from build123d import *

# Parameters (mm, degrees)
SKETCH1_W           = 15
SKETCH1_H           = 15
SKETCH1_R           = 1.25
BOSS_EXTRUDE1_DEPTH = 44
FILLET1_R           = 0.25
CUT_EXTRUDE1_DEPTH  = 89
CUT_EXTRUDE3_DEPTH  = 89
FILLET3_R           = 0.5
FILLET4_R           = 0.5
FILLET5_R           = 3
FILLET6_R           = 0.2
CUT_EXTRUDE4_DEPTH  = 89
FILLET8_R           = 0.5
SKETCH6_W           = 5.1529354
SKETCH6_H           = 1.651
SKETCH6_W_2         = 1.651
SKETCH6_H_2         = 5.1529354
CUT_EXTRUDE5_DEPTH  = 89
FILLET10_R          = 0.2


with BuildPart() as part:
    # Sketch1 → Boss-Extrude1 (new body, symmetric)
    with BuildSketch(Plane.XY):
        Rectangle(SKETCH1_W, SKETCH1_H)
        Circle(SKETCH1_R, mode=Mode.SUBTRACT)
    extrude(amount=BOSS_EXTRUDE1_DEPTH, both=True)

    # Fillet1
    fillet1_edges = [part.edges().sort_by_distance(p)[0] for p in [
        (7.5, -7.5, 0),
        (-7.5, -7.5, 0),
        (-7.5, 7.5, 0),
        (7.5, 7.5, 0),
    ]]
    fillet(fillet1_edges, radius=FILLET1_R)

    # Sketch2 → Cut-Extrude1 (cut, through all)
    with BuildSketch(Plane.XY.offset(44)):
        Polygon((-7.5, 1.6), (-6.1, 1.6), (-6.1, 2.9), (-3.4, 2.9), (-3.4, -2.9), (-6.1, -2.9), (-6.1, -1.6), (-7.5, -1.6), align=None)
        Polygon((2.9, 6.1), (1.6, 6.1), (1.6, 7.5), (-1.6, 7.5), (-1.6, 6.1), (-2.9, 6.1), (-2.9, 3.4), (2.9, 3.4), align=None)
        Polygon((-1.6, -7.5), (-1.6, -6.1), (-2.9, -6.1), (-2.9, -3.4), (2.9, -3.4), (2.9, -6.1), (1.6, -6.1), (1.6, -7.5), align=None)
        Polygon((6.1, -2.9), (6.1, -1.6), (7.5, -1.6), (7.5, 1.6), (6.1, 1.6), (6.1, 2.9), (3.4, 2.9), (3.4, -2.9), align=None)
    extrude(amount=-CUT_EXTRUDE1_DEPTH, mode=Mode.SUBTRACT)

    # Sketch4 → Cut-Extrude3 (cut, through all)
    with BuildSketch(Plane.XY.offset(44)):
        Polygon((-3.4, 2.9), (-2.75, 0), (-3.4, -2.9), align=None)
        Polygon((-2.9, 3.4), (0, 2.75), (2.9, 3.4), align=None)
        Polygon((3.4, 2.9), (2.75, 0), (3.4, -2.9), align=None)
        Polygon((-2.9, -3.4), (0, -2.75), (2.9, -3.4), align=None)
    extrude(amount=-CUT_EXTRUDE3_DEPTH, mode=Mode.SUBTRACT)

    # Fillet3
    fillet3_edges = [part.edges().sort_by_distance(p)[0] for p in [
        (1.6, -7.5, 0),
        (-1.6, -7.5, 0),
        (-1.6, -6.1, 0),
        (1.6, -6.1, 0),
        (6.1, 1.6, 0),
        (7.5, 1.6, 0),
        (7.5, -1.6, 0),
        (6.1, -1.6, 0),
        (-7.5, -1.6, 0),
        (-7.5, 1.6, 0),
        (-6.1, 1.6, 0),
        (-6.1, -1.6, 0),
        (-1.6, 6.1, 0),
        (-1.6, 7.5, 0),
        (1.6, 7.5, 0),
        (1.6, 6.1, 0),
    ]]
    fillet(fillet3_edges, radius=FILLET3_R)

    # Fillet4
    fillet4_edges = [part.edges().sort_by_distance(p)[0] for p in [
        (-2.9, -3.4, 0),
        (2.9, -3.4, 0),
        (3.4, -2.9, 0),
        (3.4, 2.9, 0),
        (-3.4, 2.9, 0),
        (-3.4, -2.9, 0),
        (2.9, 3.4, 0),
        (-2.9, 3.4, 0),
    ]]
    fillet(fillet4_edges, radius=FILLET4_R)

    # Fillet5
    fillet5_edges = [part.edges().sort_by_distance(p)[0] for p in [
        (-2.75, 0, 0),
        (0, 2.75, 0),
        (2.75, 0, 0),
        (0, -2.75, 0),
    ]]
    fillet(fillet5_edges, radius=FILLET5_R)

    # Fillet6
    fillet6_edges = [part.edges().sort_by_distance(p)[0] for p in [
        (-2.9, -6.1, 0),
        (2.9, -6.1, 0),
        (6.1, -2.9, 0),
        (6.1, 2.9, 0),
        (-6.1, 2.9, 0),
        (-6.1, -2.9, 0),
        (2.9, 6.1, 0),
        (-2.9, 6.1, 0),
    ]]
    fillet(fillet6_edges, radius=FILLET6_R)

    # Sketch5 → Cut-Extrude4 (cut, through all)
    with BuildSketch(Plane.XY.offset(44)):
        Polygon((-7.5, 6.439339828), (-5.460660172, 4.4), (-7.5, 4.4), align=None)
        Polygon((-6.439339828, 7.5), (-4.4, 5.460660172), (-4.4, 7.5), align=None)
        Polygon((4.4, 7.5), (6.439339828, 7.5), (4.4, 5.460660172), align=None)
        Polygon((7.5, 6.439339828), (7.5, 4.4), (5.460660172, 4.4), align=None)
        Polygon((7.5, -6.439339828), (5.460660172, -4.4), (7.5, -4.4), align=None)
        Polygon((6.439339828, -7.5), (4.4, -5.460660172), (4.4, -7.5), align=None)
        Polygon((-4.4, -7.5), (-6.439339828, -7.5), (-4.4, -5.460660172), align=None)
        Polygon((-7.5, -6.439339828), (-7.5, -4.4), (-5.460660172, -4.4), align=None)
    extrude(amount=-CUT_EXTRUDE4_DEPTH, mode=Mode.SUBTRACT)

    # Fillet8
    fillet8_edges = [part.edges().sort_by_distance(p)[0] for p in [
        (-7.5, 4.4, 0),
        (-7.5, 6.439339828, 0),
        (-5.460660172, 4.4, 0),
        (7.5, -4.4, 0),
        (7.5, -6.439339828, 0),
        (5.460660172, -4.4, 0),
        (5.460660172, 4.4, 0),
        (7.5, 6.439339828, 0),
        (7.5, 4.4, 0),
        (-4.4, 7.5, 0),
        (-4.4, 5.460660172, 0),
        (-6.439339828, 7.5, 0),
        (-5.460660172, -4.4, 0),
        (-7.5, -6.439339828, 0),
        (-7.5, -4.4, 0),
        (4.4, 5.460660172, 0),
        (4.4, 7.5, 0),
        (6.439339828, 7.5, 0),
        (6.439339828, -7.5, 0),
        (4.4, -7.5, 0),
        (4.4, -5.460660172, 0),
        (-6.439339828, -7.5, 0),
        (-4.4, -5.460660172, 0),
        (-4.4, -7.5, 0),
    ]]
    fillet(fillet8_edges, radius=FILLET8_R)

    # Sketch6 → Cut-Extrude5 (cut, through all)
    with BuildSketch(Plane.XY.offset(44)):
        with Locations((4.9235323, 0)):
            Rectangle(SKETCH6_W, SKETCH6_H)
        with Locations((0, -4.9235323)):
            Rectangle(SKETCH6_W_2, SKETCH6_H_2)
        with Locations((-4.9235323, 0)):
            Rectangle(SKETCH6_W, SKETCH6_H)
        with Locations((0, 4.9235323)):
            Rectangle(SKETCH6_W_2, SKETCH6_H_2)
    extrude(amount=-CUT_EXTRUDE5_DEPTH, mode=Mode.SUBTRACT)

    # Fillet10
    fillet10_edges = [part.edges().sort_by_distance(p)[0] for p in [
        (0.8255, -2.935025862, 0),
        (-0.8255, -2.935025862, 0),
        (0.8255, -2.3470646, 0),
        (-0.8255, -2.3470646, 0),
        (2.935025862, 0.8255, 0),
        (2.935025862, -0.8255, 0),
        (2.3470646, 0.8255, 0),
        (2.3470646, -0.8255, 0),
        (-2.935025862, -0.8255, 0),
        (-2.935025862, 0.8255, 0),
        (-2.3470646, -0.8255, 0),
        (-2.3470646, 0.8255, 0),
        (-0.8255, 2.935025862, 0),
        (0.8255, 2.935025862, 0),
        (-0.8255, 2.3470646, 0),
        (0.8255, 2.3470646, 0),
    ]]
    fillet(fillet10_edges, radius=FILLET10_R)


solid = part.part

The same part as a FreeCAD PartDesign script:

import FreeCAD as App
import Part
import Sketcher

V = App.Vector
Q = App.Units.Quantity


def edges_at(feature, points):
    """Names of the edges that pass closest to the given points."""
    edges = feature.Shape.Edges
    near = lambda p: min(range(len(edges)), key=lambda i: edges[i].distToShape(Part.Vertex(*p))[0])
    return sorted({f"Edge{near(p) + 1}" for p in points})

doc = App.newDocument("Part")
body = doc.addObject("PartDesign::Body", "Body")

sketch1 = body.newObject("Sketcher::SketchObject", "Sketch")
sketch1.AttachmentSupport = (doc.getObject("XY_Plane"), [""])
sketch1.MapMode = "FlatFace"
sketch1.addGeometry(Part.LineSegment(V(-7.5, 7.5, 0), V(-7.5, -7.5, 0)), False)
sketch1.addGeometry(Part.LineSegment(V(-7.5, -7.5, 0), V(7.5, -7.5, 0)), False)
sketch1.addGeometry(Part.LineSegment(V(7.5, -7.5, 0), V(7.5, 7.5, 0)), False)
sketch1.addGeometry(Part.LineSegment(V(7.5, 7.5, 0), V(-7.5, 7.5, 0)), False)
sketch1.addGeometry(Part.Circle(V(0, 0, 0), V(0, 0, 1), 1.2), False)
sketch1.addConstraint(Sketcher.Constraint("Coincident", 0, 2, 1, 1))
sketch1.addConstraint(Sketcher.Constraint("Coincident", 1, 2, 2, 1))
sketch1.addConstraint(Sketcher.Constraint("Coincident", 2, 2, 3, 1))
sketch1.addConstraint(Sketcher.Constraint("Coincident", 3, 2, 0, 1))
sketch1.addConstraint(Sketcher.Constraint("Vertical", 0))
sketch1.addConstraint(Sketcher.Constraint("Horizontal", 1))
sketch1.addConstraint(Sketcher.Constraint("Vertical", 2))
sketch1.addConstraint(Sketcher.Constraint("Horizontal", 3))
sketch1.addConstraint(Sketcher.Constraint("Coincident", 4, 3, -1, 1))
sketch1.addConstraint(Sketcher.Constraint("Symmetric", 0, 2, 2, 2, -1, 1))
sketch1.addConstraint(Sketcher.Constraint("Equal", 3, 0))
sketch1.addConstraint(Sketcher.Constraint("Diameter", 4, Q("2.5 mm")))
sketch1.addConstraint(Sketcher.Constraint("DistanceX", 1, 1, 1, 2, Q("15 mm")))
pad1 = body.newObject("PartDesign::Pad", "Pad")
pad1.Profile = sketch1
pad1.Length = 88
pad1.Midplane = True
doc.recompute()

fillet = body.newObject("PartDesign::Fillet", "Fillet")
fillet.Base = (pad1, edges_at(pad1, [
    (7.5, -7.5, 0),
    (-7.5, -7.5, 0),
    (-7.5, 7.5, 0),
    (7.5, 7.5, 0),
]))
fillet.Radius = 0.25

sketch2 = body.newObject("Sketcher::SketchObject", "Sketch001")
sketch2.AttachmentSupport = (doc.getObject("XY_Plane"), [""])
sketch2.MapMode = "FlatFace"
sketch2.AttachmentOffset = App.Placement(V(0, 0, 44), App.Rotation())
sketch2.addGeometry(Part.LineSegment(V(-6.1, 1.6, 0), V(-7.5, 1.6, 0)), False)
sketch2.addGeometry(Part.LineSegment(V(-7.5, 1.6, 0), V(-7.5, -1.6, 0)), False)
sketch2.addGeometry(Part.LineSegment(V(-7.5, -1.6, 0), V(-6.1, -1.6, 0)), False)
sketch2.addGeometry(Part.LineSegment(V(-6.1, -1.6, 0), V(-6.1, -2.9, 0)), False)
sketch2.addGeometry(Part.LineSegment(V(-6.1, -2.9, 0), V(-3.4, -2.9, 0)), False)
sketch2.addGeometry(Part.LineSegment(V(-3.4, -2.9, 0), V(-3.4, 2.9, 0)), False)
sketch2.addGeometry(Part.LineSegment(V(-3.4, 2.9, 0), V(-6.1, 2.9, 0)), False)
sketch2.addGeometry(Part.LineSegment(V(-6.1, 2.9, 0), V(-6.1, 1.6, 0)), False)
sketch2.addGeometry(Part.LineSegment(V(2.9, 6.1, 0), V(1.6, 6.1, 0)), False)
sketch2.addGeometry(Part.LineSegment(V(1.6, 6.1, 0), V(1.6, 7.5, 0)), False)
sketch2.addGeometry(Part.LineSegment(V(1.6, 7.5, 0), V(-1.6, 7.5, 0)), False)
sketch2.addGeometry(Part.LineSegment(V(-1.6, 7.5, 0), V(-1.6, 6.1, 0)), False)
sketch2.addGeometry(Part.LineSegment(V(-1.6, 6.1, 0), V(-2.9, 6.1, 0)), False)
sketch2.addGeometry(Part.LineSegment(V(-2.9, 6.1, 0), V(-2.9, 3.4, 0)), False)
sketch2.addGeometry(Part.LineSegment(V(-2.9, 3.4, 0), V(2.9, 3.4, 0)), False)
sketch2.addGeometry(Part.LineSegment(V(2.9, 3.4, 0), V(2.9, 6.1, 0)), False)
sketch2.addGeometry(Part.LineSegment(V(-1.6, -6.1, 0), V(-1.6, -7.5, 0)), False)
sketch2.addGeometry(Part.LineSegment(V(-1.6, -7.5, 0), V(1.6, -7.5, 0)), False)
sketch2.addGeometry(Part.LineSegment(V(1.6, -7.5, 0), V(1.6, -6.1, 0)), False)
sketch2.addGeometry(Part.LineSegment(V(1.6, -6.1, 0), V(2.9, -6.1, 0)), False)
sketch2.addGeometry(Part.LineSegment(V(2.9, -6.1, 0), V(2.9, -3.4, 0)), False)
sketch2.addGeometry(Part.LineSegment(V(2.9, -3.4, 0), V(-2.9, -3.4, 0)), False)
sketch2.addGeometry(Part.LineSegment(V(-2.9, -3.4, 0), V(-2.9, -6.1, 0)), False)
sketch2.addGeometry(Part.LineSegment(V(-2.9, -6.1, 0), V(-1.6, -6.1, 0)), False)
sketch2.addGeometry(Part.LineSegment(V(6.1, -2.9, 0), V(6.1, -1.6, 0)), False)
sketch2.addGeometry(Part.LineSegment(V(6.1, -1.6, 0), V(7.5, -1.6, 0)), False)
sketch2.addGeometry(Part.LineSegment(V(7.5, -1.6, 0), V(7.5, 1.6, 0)), False)
sketch2.addGeometry(Part.LineSegment(V(7.5, 1.6, 0), V(6.1, 1.6, 0)), False)
sketch2.addGeometry(Part.LineSegment(V(6.1, 1.6, 0), V(6.1, 2.9, 0)), False)
sketch2.addGeometry(Part.LineSegment(V(6.1, 2.9, 0), V(3.4, 2.9, 0)), False)
sketch2.addGeometry(Part.LineSegment(V(3.4, 2.9, 0), V(3.4, -2.9, 0)), False)
sketch2.addGeometry(Part.LineSegment(V(3.4, -2.9, 0), V(6.1, -2.9, 0)), False)
sketch2.addConstraint(Sketcher.Constraint("Coincident", 0, 2, 1, 1))
sketch2.addConstraint(Sketcher.Constraint("Coincident", 1, 2, 2, 1))
sketch2.addConstraint(Sketcher.Constraint("Coincident", 2, 2, 3, 1))
sketch2.addConstraint(Sketcher.Constraint("Coincident", 3, 2, 4, 1))
sketch2.addConstraint(Sketcher.Constraint("Coincident", 4, 2, 5, 1))
sketch2.addConstraint(Sketcher.Constraint("Coincident", 5, 2, 6, 1))
sketch2.addConstraint(Sketcher.Constraint("Coincident", 6, 2, 7, 1))
sketch2.addConstraint(Sketcher.Constraint("Coincident", 7, 2, 0, 1))
sketch2.addConstraint(Sketcher.Constraint("Coincident", 8, 2, 9, 1))
sketch2.addConstraint(Sketcher.Constraint("Coincident", 9, 2, 10, 1))
sketch2.addConstraint(Sketcher.Constraint("Coincident", 10, 2, 11, 1))
sketch2.addConstraint(Sketcher.Constraint("Coincident", 11, 2, 12, 1))
sketch2.addConstraint(Sketcher.Constraint("Coincident", 12, 2, 13, 1))
sketch2.addConstraint(Sketcher.Constraint("Coincident", 13, 2, 14, 1))
sketch2.addConstraint(Sketcher.Constraint("Coincident", 14, 2, 15, 1))
sketch2.addConstraint(Sketcher.Constraint("Coincident", 15, 2, 8, 1))
sketch2.addConstraint(Sketcher.Constraint("Coincident", 16, 2, 17, 1))
sketch2.addConstraint(Sketcher.Constraint("Coincident", 17, 2, 18, 1))
sketch2.addConstraint(Sketcher.Constraint("Coincident", 18, 2, 19, 1))
sketch2.addConstraint(Sketcher.Constraint("Coincident", 19, 2, 20, 1))
sketch2.addConstraint(Sketcher.Constraint("Coincident", 20, 2, 21, 1))
sketch2.addConstraint(Sketcher.Constraint("Coincident", 21, 2, 22, 1))
sketch2.addConstraint(Sketcher.Constraint("Coincident", 22, 2, 23, 1))
sketch2.addConstraint(Sketcher.Constraint("Coincident", 23, 2, 16, 1))
sketch2.addConstraint(Sketcher.Constraint("Coincident", 24, 2, 25, 1))
sketch2.addConstraint(Sketcher.Constraint("Coincident", 25, 2, 26, 1))
sketch2.addConstraint(Sketcher.Constraint("Coincident", 26, 2, 27, 1))
sketch2.addConstraint(Sketcher.Constraint("Coincident", 27, 2, 28, 1))
sketch2.addConstraint(Sketcher.Constraint("Coincident", 28, 2, 29, 1))
sketch2.addConstraint(Sketcher.Constraint("Coincident", 29, 2, 30, 1))
sketch2.addConstraint(Sketcher.Constraint("Coincident", 30, 2, 31, 1))
sketch2.addConstraint(Sketcher.Constraint("Coincident", 31, 2, 24, 1))
sketch2.addConstraint(Sketcher.Constraint("Horizontal", 0))
sketch2.addConstraint(Sketcher.Constraint("Vertical", 1))
sketch2.addConstraint(Sketcher.Constraint("Horizontal", 2))
sketch2.addConstraint(Sketcher.Constraint("Vertical", 3))
sketch2.addConstraint(Sketcher.Constraint("Horizontal", 4))
sketch2.addConstraint(Sketcher.Constraint("Vertical", 5))
sketch2.addConstraint(Sketcher.Constraint("Horizontal", 6))
sketch2.addConstraint(Sketcher.Constraint("Vertical", 7))
sketch2.addConstraint(Sketcher.Constraint("Horizontal", 8))
sketch2.addConstraint(Sketcher.Constraint("Vertical", 9))
sketch2.addConstraint(Sketcher.Constraint("Horizontal", 10))
sketch2.addConstraint(Sketcher.Constraint("Vertical", 11))
sketch2.addConstraint(Sketcher.Constraint("Horizontal", 12))
sketch2.addConstraint(Sketcher.Constraint("Vertical", 13))
sketch2.addConstraint(Sketcher.Constraint("Horizontal", 14))
sketch2.addConstraint(Sketcher.Constraint("Vertical", 15))
sketch2.addConstraint(Sketcher.Constraint("Vertical", 16))
sketch2.addConstraint(Sketcher.Constraint("Horizontal", 17))
sketch2.addConstraint(Sketcher.Constraint("Vertical", 18))
sketch2.addConstraint(Sketcher.Constraint("Horizontal", 19))
sketch2.addConstraint(Sketcher.Constraint("Vertical", 20))
sketch2.addConstraint(Sketcher.Constraint("Horizontal", 21))
sketch2.addConstraint(Sketcher.Constraint("Vertical", 22))
sketch2.addConstraint(Sketcher.Constraint("Horizontal", 23))
sketch2.addConstraint(Sketcher.Constraint("Vertical", 24))
sketch2.addConstraint(Sketcher.Constraint("Horizontal", 25))
sketch2.addConstraint(Sketcher.Constraint("Vertical", 26))
sketch2.addConstraint(Sketcher.Constraint("Horizontal", 27))
sketch2.addConstraint(Sketcher.Constraint("Vertical", 28))
sketch2.addConstraint(Sketcher.Constraint("Horizontal", 29))
sketch2.addConstraint(Sketcher.Constraint("Vertical", 30))
sketch2.addConstraint(Sketcher.Constraint("Horizontal", 31))
sketch2.addConstraint(Sketcher.Constraint("Symmetric", 9, 2, 16, 2, -1, 1))
sketch2.addConstraint(Sketcher.Constraint("Symmetric", 11, 2, 18, 2, -1, 1))
sketch2.addConstraint(Sketcher.Constraint("Symmetric", 13, 2, 20, 2, -1, 1))
sketch2.addConstraint(Sketcher.Constraint("Symmetric", 15, 2, 22, 2, -1, 1))
sketch2.addConstraint(Sketcher.Constraint("Symmetric", 7, 2, 24, 2, -1, 1))
sketch2.addConstraint(Sketcher.Constraint("Symmetric", 1, 2, 26, 2, -1, 1))
sketch2.addConstraint(Sketcher.Constraint("Symmetric", 3, 2, 28, 2, -1, 1))
sketch2.addConstraint(Sketcher.Constraint("Symmetric", 5, 2, 30, 2, -1, 1))
sketch2.addConstraint(Sketcher.Constraint("Symmetric", 8, 2, 11, 2, -2))
sketch2.addConstraint(Sketcher.Constraint("Symmetric", 2, 2, 24, 2, -2))
sketch2.addConstraint(Sketcher.Constraint("Horizontal", 6, 2, 28, 2))
sketch2.addConstraint(Sketcher.Constraint("Vertical", 15, 2, 19, 2))
sketch2.addConstraint(Sketcher.Constraint("Equal", 17, 1))
sketch2.addConstraint(Sketcher.Constraint("Equal", 23, 3))
sketch2.addConstraint(Sketcher.Constraint("Equal", 27, 9))
sketch2.addConstraint(Sketcher.Constraint("Equal", 31, 13))
sketch2.addConstraint(Sketcher.Constraint("DistanceX", 0, 2, 0, 1, Q("1.4 mm")))
sketch2.addConstraint(Sketcher.Constraint("DistanceX", 4, 1, 4, 2, Q("2.7 mm")))
sketch2.addConstraint(Sketcher.Constraint("DistanceX", 8, 2, 8, 1, Q("1.3 mm")))
sketch2.addConstraint(Sketcher.Constraint("DistanceX", 10, 2, 10, 1, Q("3.2 mm")))
sketch2.addConstraint(Sketcher.Constraint("DistanceX", 5, 2, 8, 2, Q("5 mm")))
sketch2.addConstraint(Sketcher.Constraint("DistanceY", 4, 2, 8, 2, Q("9 mm")))
pocket1 = body.newObject("PartDesign::Pocket", "Pocket")
pocket1.Profile = sketch2
pocket1.Type = "ThroughAll"

sketch3 = body.newObject("Sketcher::SketchObject", "Sketch002")
sketch3.AttachmentSupport = (doc.getObject("XY_Plane"), [""])
sketch3.MapMode = "FlatFace"
sketch3.AttachmentOffset = App.Placement(V(0, 0, 44), App.Rotation())
sketch3.addGeometry(Part.LineSegment(V(-2.8, 0, 0), V(-3.4, 2.9, 0)), False)
sketch3.addGeometry(Part.LineSegment(V(-3.4, 2.9, 0), V(-3.4, -2.9, 0)), False)
sketch3.addGeometry(Part.LineSegment(V(-3.4, -2.9, 0), V(-2.8, 0, 0)), False)
sketch3.addGeometry(Part.LineSegment(V(-2.9, 3.4, 0), V(0, 2.8, 0)), False)
sketch3.addGeometry(Part.LineSegment(V(0, 2.8, 0), V(2.9, 3.4, 0)), False)
sketch3.addGeometry(Part.LineSegment(V(2.9, 3.4, 0), V(-2.9, 3.4, 0)), False)
sketch3.addGeometry(Part.LineSegment(V(3.4, 2.9, 0), V(2.8, 0, 0)), False)
sketch3.addGeometry(Part.LineSegment(V(2.8, 0, 0), V(3.4, -2.9, 0)), False)
sketch3.addGeometry(Part.LineSegment(V(3.4, -2.9, 0), V(3.4, 2.9, 0)), False)
sketch3.addGeometry(Part.LineSegment(V(0, -2.8, 0), V(-2.9, -3.4, 0)), False)
sketch3.addGeometry(Part.LineSegment(V(-2.9, -3.4, 0), V(2.9, -3.4, 0)), False)
sketch3.addGeometry(Part.LineSegment(V(2.9, -3.4, 0), V(0, -2.8, 0)), False)
sketch3.addConstraint(Sketcher.Constraint("Coincident", 0, 2, 1, 1))
sketch3.addConstraint(Sketcher.Constraint("Coincident", 1, 2, 2, 1))
sketch3.addConstraint(Sketcher.Constraint("Coincident", 2, 2, 0, 1))
sketch3.addConstraint(Sketcher.Constraint("Coincident", 3, 2, 4, 1))
sketch3.addConstraint(Sketcher.Constraint("Coincident", 4, 2, 5, 1))
sketch3.addConstraint(Sketcher.Constraint("Coincident", 5, 2, 3, 1))
sketch3.addConstraint(Sketcher.Constraint("Coincident", 6, 2, 7, 1))
sketch3.addConstraint(Sketcher.Constraint("Coincident", 7, 2, 8, 1))
sketch3.addConstraint(Sketcher.Constraint("Coincident", 8, 2, 6, 1))
sketch3.addConstraint(Sketcher.Constraint("Coincident", 9, 2, 10, 1))
sketch3.addConstraint(Sketcher.Constraint("Coincident", 10, 2, 11, 1))
sketch3.addConstraint(Sketcher.Constraint("Coincident", 11, 2, 9, 1))
sketch3.addConstraint(Sketcher.Constraint("Vertical", 1))
sketch3.addConstraint(Sketcher.Constraint("Horizontal", 5))
sketch3.addConstraint(Sketcher.Constraint("Vertical", 8))
sketch3.addConstraint(Sketcher.Constraint("Horizontal", 10))
sketch3.addConstraint(Sketcher.Constraint("Symmetric", 2, 2, 6, 2, -1, 1))
sketch3.addConstraint(Sketcher.Constraint("Symmetric", 0, 2, 7, 2, -1, 1))
sketch3.addConstraint(Sketcher.Constraint("Symmetric", 4, 2, 9, 2, -1, 1))
sketch3.addConstraint(Sketcher.Constraint("Symmetric", 3, 2, 11, 2, -1, 1))
sketch3.addConstraint(Sketcher.Constraint("PointOnObject", 2, 2, -1))
sketch3.addConstraint(Sketcher.Constraint("PointOnObject", 3, 2, -2))
sketch3.addConstraint(Sketcher.Constraint("Perpendicular", 2, 3))
sketch3.addConstraint(Sketcher.Constraint("Perpendicular", 0, 4))
sketch3.addConstraint(Sketcher.Constraint("Perpendicular", 3, 6))
sketch3.addConstraint(Sketcher.Constraint("Perpendicular", 6, 11))
sketch3.addConstraint(Sketcher.Constraint("Horizontal", 1, 2, 7, 2))
sketch3.addConstraint(Sketcher.Constraint("Equal", 10, 1))
sketch3.addConstraint(Sketcher.Constraint("DistanceX", 5, 2, 5, 1, Q("5.8 mm")))
sketch3.addConstraint(Sketcher.Constraint("DistanceX", 0, 2, -1, 1, Q("3.4 mm")))
sketch3.addConstraint(Sketcher.Constraint("DistanceY", -1, 1, 4, 2, Q("3.4 mm")))
sketch3.addConstraint(Sketcher.Constraint("DistanceX", 2, 2, 6, 2, Q("5.5 mm")))
pocket2 = body.newObject("PartDesign::Pocket", "Pocket001")
pocket2.Profile = sketch3
pocket2.Type = "ThroughAll"
doc.recompute()

fillet2 = body.newObject("PartDesign::Fillet", "Fillet001")
fillet2.Base = (pocket2, edges_at(pocket2, [
    (1.6, -7.5, 0),
    (-1.6, -7.5, 0),
    (-1.6, -6.1, 0),
    (1.6, -6.1, 0),
    (6.1, 1.6, 0),
    (7.5, 1.6, 0),
    (7.5, -1.6, 0),
    (6.1, -1.6, 0),
    (-7.5, -1.6, 0),
    (-7.5, 1.6, 0),
    (-6.1, 1.6, 0),
    (-6.1, -1.6, 0),
    (-1.6, 6.1, 0),
    (-1.6, 7.5, 0),
    (1.6, 7.5, 0),
    (1.6, 6.1, 0),
]))
fillet2.Radius = 0.5
doc.recompute()

fillet3 = body.newObject("PartDesign::Fillet", "Fillet002")
fillet3.Base = (fillet2, edges_at(fillet2, [
    (-2.9, -3.4, 0),
    (2.9, -3.4, 0),
    (3.4, -2.9, 0),
    (3.4, 2.9, 0),
    (-3.4, 2.9, 0),
    (-3.4, -2.9, 0),
    (2.9, 3.4, 0),
    (-2.9, 3.4, 0),
]))
fillet3.Radius = 0.5
doc.recompute()

fillet4 = body.newObject("PartDesign::Fillet", "Fillet003")
fillet4.Base = (fillet3, edges_at(fillet3, [
    (-2.75, 0, 0),
    (0, 2.75, 0),
    (2.75, 0, 0),
    (0, -2.75, 0),
]))
fillet4.Radius = 3
doc.recompute()

fillet5 = body.newObject("PartDesign::Fillet", "Fillet004")
fillet5.Base = (fillet4, edges_at(fillet4, [
    (-2.9, -6.1, 0),
    (2.9, -6.1, 0),
    (6.1, -2.9, 0),
    (6.1, 2.9, 0),
    (-6.1, 2.9, 0),
    (-6.1, -2.9, 0),
    (2.9, 6.1, 0),
    (-2.9, 6.1, 0),
]))
fillet5.Radius = 0.2

sketch4 = body.newObject("Sketcher::SketchObject", "Sketch003")
sketch4.AttachmentSupport = (doc.getObject("XY_Plane"), [""])
sketch4.MapMode = "FlatFace"
sketch4.AttachmentOffset = App.Placement(V(0, 0, 44), App.Rotation())
sketch4.addGeometry(Part.LineSegment(V(-5.5, 4.4, 0), V(-7.5, 6.4, 0)), False)
sketch4.addGeometry(Part.LineSegment(V(-7.5, 6.4, 0), V(-7.5, 4.4, 0)), False)
sketch4.addGeometry(Part.LineSegment(V(-7.5, 4.4, 0), V(-5.5, 4.4, 0)), False)
sketch4.addGeometry(Part.LineSegment(V(-6.4, 7.5, 0), V(-4.4, 5.5, 0)), False)
sketch4.addGeometry(Part.LineSegment(V(-4.4, 5.5, 0), V(-4.4, 7.5, 0)), False)
sketch4.addGeometry(Part.LineSegment(V(-4.4, 7.5, 0), V(-6.4, 7.5, 0)), False)
sketch4.addGeometry(Part.LineSegment(V(6.4, 7.5, 0), V(4.4, 7.5, 0)), False)
sketch4.addGeometry(Part.LineSegment(V(4.4, 7.5, 0), V(4.4, 5.5, 0)), False)
sketch4.addGeometry(Part.LineSegment(V(4.4, 5.5, 0), V(6.4, 7.5, 0)), False)
sketch4.addGeometry(Part.LineSegment(V(7.5, 4.4, 0), V(7.5, 6.4, 0)), False)
sketch4.addGeometry(Part.LineSegment(V(7.5, 6.4, 0), V(5.5, 4.4, 0)), False)
sketch4.addGeometry(Part.LineSegment(V(5.5, 4.4, 0), V(7.5, 4.4, 0)), False)
sketch4.addGeometry(Part.LineSegment(V(5.5, -4.4, 0), V(7.5, -6.4, 0)), False)
sketch4.addGeometry(Part.LineSegment(V(7.5, -6.4, 0), V(7.5, -4.4, 0)), False)
sketch4.addGeometry(Part.LineSegment(V(7.5, -4.4, 0), V(5.5, -4.4, 0)), False)
sketch4.addGeometry(Part.LineSegment(V(6.4, -7.5, 0), V(4.4, -5.5, 0)), False)
sketch4.addGeometry(Part.LineSegment(V(4.4, -5.5, 0), V(4.4, -7.5, 0)), False)
sketch4.addGeometry(Part.LineSegment(V(4.4, -7.5, 0), V(6.4, -7.5, 0)), False)
sketch4.addGeometry(Part.LineSegment(V(-6.4, -7.5, 0), V(-4.4, -7.5, 0)), False)
sketch4.addGeometry(Part.LineSegment(V(-4.4, -7.5, 0), V(-4.4, -5.5, 0)), False)
sketch4.addGeometry(Part.LineSegment(V(-4.4, -5.5, 0), V(-6.4, -7.5, 0)), False)
sketch4.addGeometry(Part.LineSegment(V(-7.5, -4.4, 0), V(-7.5, -6.4, 0)), False)
sketch4.addGeometry(Part.LineSegment(V(-7.5, -6.4, 0), V(-5.5, -4.4, 0)), False)
sketch4.addGeometry(Part.LineSegment(V(-5.5, -4.4, 0), V(-7.5, -4.4, 0)), False)
sketch4.addConstraint(Sketcher.Constraint("Coincident", 0, 2, 1, 1))
sketch4.addConstraint(Sketcher.Constraint("Coincident", 1, 2, 2, 1))
sketch4.addConstraint(Sketcher.Constraint("Coincident", 2, 2, 0, 1))
sketch4.addConstraint(Sketcher.Constraint("Coincident", 3, 2, 4, 1))
sketch4.addConstraint(Sketcher.Constraint("Coincident", 4, 2, 5, 1))
sketch4.addConstraint(Sketcher.Constraint("Coincident", 5, 2, 3, 1))
sketch4.addConstraint(Sketcher.Constraint("Coincident", 6, 2, 7, 1))
sketch4.addConstraint(Sketcher.Constraint("Coincident", 7, 2, 8, 1))
sketch4.addConstraint(Sketcher.Constraint("Coincident", 8, 2, 6, 1))
sketch4.addConstraint(Sketcher.Constraint("Coincident", 9, 2, 10, 1))
sketch4.addConstraint(Sketcher.Constraint("Coincident", 10, 2, 11, 1))
sketch4.addConstraint(Sketcher.Constraint("Coincident", 11, 2, 9, 1))
sketch4.addConstraint(Sketcher.Constraint("Coincident", 12, 2, 13, 1))
sketch4.addConstraint(Sketcher.Constraint("Coincident", 13, 2, 14, 1))
sketch4.addConstraint(Sketcher.Constraint("Coincident", 14, 2, 12, 1))
sketch4.addConstraint(Sketcher.Constraint("Coincident", 15, 2, 16, 1))
sketch4.addConstraint(Sketcher.Constraint("Coincident", 16, 2, 17, 1))
sketch4.addConstraint(Sketcher.Constraint("Coincident", 17, 2, 15, 1))
sketch4.addConstraint(Sketcher.Constraint("Coincident", 18, 2, 19, 1))
sketch4.addConstraint(Sketcher.Constraint("Coincident", 19, 2, 20, 1))
sketch4.addConstraint(Sketcher.Constraint("Coincident", 20, 2, 18, 1))
sketch4.addConstraint(Sketcher.Constraint("Coincident", 21, 2, 22, 1))
sketch4.addConstraint(Sketcher.Constraint("Coincident", 22, 2, 23, 1))
sketch4.addConstraint(Sketcher.Constraint("Coincident", 23, 2, 21, 1))
sketch4.addConstraint(Sketcher.Constraint("Vertical", 1))
sketch4.addConstraint(Sketcher.Constraint("Horizontal", 2))
sketch4.addConstraint(Sketcher.Constraint("Vertical", 4))
sketch4.addConstraint(Sketcher.Constraint("Horizontal", 5))
sketch4.addConstraint(Sketcher.Constraint("Horizontal", 6))
sketch4.addConstraint(Sketcher.Constraint("Vertical", 7))
sketch4.addConstraint(Sketcher.Constraint("Vertical", 9))
sketch4.addConstraint(Sketcher.Constraint("Horizontal", 11))
sketch4.addConstraint(Sketcher.Constraint("Vertical", 13))
sketch4.addConstraint(Sketcher.Constraint("Horizontal", 14))
sketch4.addConstraint(Sketcher.Constraint("Vertical", 16))
sketch4.addConstraint(Sketcher.Constraint("Horizontal", 17))
sketch4.addConstraint(Sketcher.Constraint("Horizontal", 18))
sketch4.addConstraint(Sketcher.Constraint("Vertical", 19))
sketch4.addConstraint(Sketcher.Constraint("Vertical", 21))
sketch4.addConstraint(Sketcher.Constraint("Horizontal", 23))
sketch4.addConstraint(Sketcher.Constraint("Symmetric", 0, 2, 12, 2, -1, 1))
sketch4.addConstraint(Sketcher.Constraint("Symmetric", 2, 2, 14, 2, -1, 1))
sketch4.addConstraint(Sketcher.Constraint("Symmetric", 3, 2, 15, 2, -1, 1))
sketch4.addConstraint(Sketcher.Constraint("Symmetric", 5, 2, 17, 2, -1, 1))
sketch4.addConstraint(Sketcher.Constraint("Symmetric", 6, 2, 18, 2, -1, 1))
sketch4.addConstraint(Sketcher.Constraint("Symmetric", 9, 2, 21, 2, -1, 1))
sketch4.addConstraint(Sketcher.Constraint("Symmetric", 10, 2, 22, 2, -1, 1))
sketch4.addConstraint(Sketcher.Constraint("Symmetric", 4, 2, 6, 2, -2))
sketch4.addConstraint(Sketcher.Constraint("Symmetric", 0, 2, 9, 2, -2))
sketch4.addConstraint(Sketcher.Constraint("Symmetric", 2, 2, 10, 2, -2))
sketch4.addConstraint(Sketcher.Constraint("Parallel", 0, 3))
sketch4.addConstraint(Sketcher.Constraint("Perpendicular", 3, 8))
sketch4.addConstraint(Sketcher.Constraint("Parallel", 8, 10))
sketch4.addConstraint(Sketcher.Constraint("Perpendicular", 15, 20))
sketch4.addConstraint(Sketcher.Constraint("Horizontal", 3, 2, 7, 2))
sketch4.addConstraint(Sketcher.Constraint("Horizontal", 15, 2, 19, 2))
sketch4.addConstraint(Sketcher.Constraint("Equal", 2, 5))
sketch4.addConstraint(Sketcher.Constraint("DistanceX", 0, 2, -1, 1, Q("7.5 mm")))
sketch4.addConstraint(Sketcher.Constraint("DistanceY", -1, 1, 1, 2, Q("4.4 mm")))
sketch4.addConstraint(Sketcher.Constraint("DistanceX", 3, 2, -1, 1, Q("4.4 mm")))
sketch4.addConstraint(Sketcher.Constraint("DistanceY", -1, 1, 4, 2, Q("7.5 mm")))
sketch4.addConstraint(Sketcher.Constraint("DistanceX", 2, 1, 2, 2, Q("2.03934 mm")))
pocket3 = body.newObject("PartDesign::Pocket", "Pocket002")
pocket3.Profile = sketch4
pocket3.Type = "ThroughAll"
doc.recompute()

fillet6 = body.newObject("PartDesign::Fillet", "Fillet005")
fillet6.Base = (pocket3, edges_at(pocket3, [
    (-7.5, 4.4, 0),
    (-7.5, 6.439, 0),
    (-5.461, 4.4, 0),
    (7.5, -4.4, 0),
    (7.5, -6.439, 0),
    (5.461, -4.4, 0),
    (5.461, 4.4, 0),
    (7.5, 6.439, 0),
    (7.5, 4.4, 0),
    (-4.4, 7.5, 0),
    (-4.4, 5.461, 0),
    (-6.439, 7.5, 0),
    (-5.461, -4.4, 0),
    (-7.5, -6.439, 0),
    (-7.5, -4.4, 0),
    (4.4, 5.461, 0),
    (4.4, 7.5, 0),
    (6.439, 7.5, 0),
    (6.439, -7.5, 0),
    (4.4, -7.5, 0),
    (4.4, -5.461, 0),
    (-6.439, -7.5, 0),
    (-4.4, -5.461, 0),
    (-4.4, -7.5, 0),
]))
fillet6.Radius = 0.5

sketch5 = body.newObject("Sketcher::SketchObject", "Sketch004")
sketch5.AttachmentSupport = (doc.getObject("XY_Plane"), [""])
sketch5.MapMode = "FlatFace"
sketch5.AttachmentOffset = App.Placement(V(0, 0, 44), App.Rotation())
sketch5.addGeometry(Part.LineSegment(V(2.3, 0.8, 0), V(2.3, -0.8, 0)), False)
sketch5.addGeometry(Part.LineSegment(V(2.3, -0.8, 0), V(7.5, -0.8, 0)), False)
sketch5.addGeometry(Part.LineSegment(V(7.5, -0.8, 0), V(7.5, 0.8, 0)), False)
sketch5.addGeometry(Part.LineSegment(V(7.5, 0.8, 0), V(2.3, 0.8, 0)), False)
sketch5.addGeometry(Part.LineSegment(V(-0.8, -2.3, 0), V(-0.8, -7.5, 0)), False)
sketch5.addGeometry(Part.LineSegment(V(-0.8, -7.5, 0), V(0.8, -7.5, 0)), False)
sketch5.addGeometry(Part.LineSegment(V(0.8, -7.5, 0), V(0.8, -2.3, 0)), False)
sketch5.addGeometry(Part.LineSegment(V(0.8, -2.3, 0), V(-0.8, -2.3, 0)), False)
sketch5.addGeometry(Part.LineSegment(V(-7.5, 0.8, 0), V(-7.5, -0.8, 0)), False)
sketch5.addGeometry(Part.LineSegment(V(-7.5, -0.8, 0), V(-2.3, -0.8, 0)), False)
sketch5.addGeometry(Part.LineSegment(V(-2.3, -0.8, 0), V(-2.3, 0.8, 0)), False)
sketch5.addGeometry(Part.LineSegment(V(-2.3, 0.8, 0), V(-7.5, 0.8, 0)), False)
sketch5.addGeometry(Part.LineSegment(V(-0.8, 7.5, 0), V(-0.8, 2.3, 0)), False)
sketch5.addGeometry(Part.LineSegment(V(-0.8, 2.3, 0), V(0.8, 2.3, 0)), False)
sketch5.addGeometry(Part.LineSegment(V(0.8, 2.3, 0), V(0.8, 7.5, 0)), False)
sketch5.addGeometry(Part.LineSegment(V(0.8, 7.5, 0), V(-0.8, 7.5, 0)), False)
sketch5.addConstraint(Sketcher.Constraint("Coincident", 0, 2, 1, 1))
sketch5.addConstraint(Sketcher.Constraint("Coincident", 1, 2, 2, 1))
sketch5.addConstraint(Sketcher.Constraint("Coincident", 2, 2, 3, 1))
sketch5.addConstraint(Sketcher.Constraint("Coincident", 3, 2, 0, 1))
sketch5.addConstraint(Sketcher.Constraint("Coincident", 4, 2, 5, 1))
sketch5.addConstraint(Sketcher.Constraint("Coincident", 5, 2, 6, 1))
sketch5.addConstraint(Sketcher.Constraint("Coincident", 6, 2, 7, 1))
sketch5.addConstraint(Sketcher.Constraint("Coincident", 7, 2, 4, 1))
sketch5.addConstraint(Sketcher.Constraint("Coincident", 8, 2, 9, 1))
sketch5.addConstraint(Sketcher.Constraint("Coincident", 9, 2, 10, 1))
sketch5.addConstraint(Sketcher.Constraint("Coincident", 10, 2, 11, 1))
sketch5.addConstraint(Sketcher.Constraint("Coincident", 11, 2, 8, 1))
sketch5.addConstraint(Sketcher.Constraint("Coincident", 12, 2, 13, 1))
sketch5.addConstraint(Sketcher.Constraint("Coincident", 13, 2, 14, 1))
sketch5.addConstraint(Sketcher.Constraint("Coincident", 14, 2, 15, 1))
sketch5.addConstraint(Sketcher.Constraint("Coincident", 15, 2, 12, 1))
sketch5.addConstraint(Sketcher.Constraint("Vertical", 0))
sketch5.addConstraint(Sketcher.Constraint("Horizontal", 1))
sketch5.addConstraint(Sketcher.Constraint("Vertical", 2))
sketch5.addConstraint(Sketcher.Constraint("Horizontal", 3))
sketch5.addConstraint(Sketcher.Constraint("Vertical", 4))
sketch5.addConstraint(Sketcher.Constraint("Horizontal", 5))
sketch5.addConstraint(Sketcher.Constraint("Vertical", 6))
sketch5.addConstraint(Sketcher.Constraint("Horizontal", 7))
sketch5.addConstraint(Sketcher.Constraint("Vertical", 8))
sketch5.addConstraint(Sketcher.Constraint("Horizontal", 9))
sketch5.addConstraint(Sketcher.Constraint("Vertical", 10))
sketch5.addConstraint(Sketcher.Constraint("Horizontal", 11))
sketch5.addConstraint(Sketcher.Constraint("Vertical", 12))
sketch5.addConstraint(Sketcher.Constraint("Horizontal", 13))
sketch5.addConstraint(Sketcher.Constraint("Vertical", 14))
sketch5.addConstraint(Sketcher.Constraint("Horizontal", 15))
sketch5.addConstraint(Sketcher.Constraint("Symmetric", 2, 2, 8, 2, -1, 1))
sketch5.addConstraint(Sketcher.Constraint("Symmetric", 0, 2, 10, 2, -1, 1))
sketch5.addConstraint(Sketcher.Constraint("Symmetric", 6, 2, 12, 2, -1, 1))
sketch5.addConstraint(Sketcher.Constraint("Symmetric", 4, 2, 14, 2, -1, 1))
sketch5.addConstraint(Sketcher.Constraint("Horizontal", 1, 2, 8, 2))
sketch5.addConstraint(Sketcher.Constraint("Vertical", 7, 2, 12, 2))
sketch5.addConstraint(Sketcher.Constraint("Equal", 15, 0))
sketch5.addConstraint(Sketcher.Constraint("Equal", 11, 4))
sketch5.addConstraint(Sketcher.Constraint("DistanceX", -1, 1, 1, 2, Q("7.5 mm")))
sketch5.addConstraint(Sketcher.Constraint("DistanceY", 4, 2, -1, 1, Q("7.5 mm")))
sketch5.addConstraint(Sketcher.Constraint("DistanceX", 5, 1, 5, 2, Q("1.651 mm")))
sketch5.addConstraint(Sketcher.Constraint("DistanceX", 1, 1, 1, 2, Q("5.152935 mm")))
pocket4 = body.newObject("PartDesign::Pocket", "Pocket003")
pocket4.Profile = sketch5
pocket4.Type = "ThroughAll"
doc.recompute()

fillet7 = body.newObject("PartDesign::Fillet", "Fillet006")
fillet7.Base = (pocket4, edges_at(pocket4, [
    (0.826, -2.935, 0),
    (-0.826, -2.935, 0),
    (0.826, -2.347, 0),
    (-0.826, -2.347, 0),
    (2.935, 0.826, 0),
    (2.935, -0.826, 0),
    (2.347, 0.826, 0),
    (2.347, -0.826, 0),
    (-2.935, -0.826, 0),
    (-2.935, 0.826, 0),
    (-2.347, -0.826, 0),
    (-2.347, 0.826, 0),
    (-0.826, 2.935, 0),
    (0.826, 2.935, 0),
    (-0.826, 2.347, 0),
    (0.826, 2.347, 0),
]))
fillet7.Radius = 0.2

doc.recompute()
